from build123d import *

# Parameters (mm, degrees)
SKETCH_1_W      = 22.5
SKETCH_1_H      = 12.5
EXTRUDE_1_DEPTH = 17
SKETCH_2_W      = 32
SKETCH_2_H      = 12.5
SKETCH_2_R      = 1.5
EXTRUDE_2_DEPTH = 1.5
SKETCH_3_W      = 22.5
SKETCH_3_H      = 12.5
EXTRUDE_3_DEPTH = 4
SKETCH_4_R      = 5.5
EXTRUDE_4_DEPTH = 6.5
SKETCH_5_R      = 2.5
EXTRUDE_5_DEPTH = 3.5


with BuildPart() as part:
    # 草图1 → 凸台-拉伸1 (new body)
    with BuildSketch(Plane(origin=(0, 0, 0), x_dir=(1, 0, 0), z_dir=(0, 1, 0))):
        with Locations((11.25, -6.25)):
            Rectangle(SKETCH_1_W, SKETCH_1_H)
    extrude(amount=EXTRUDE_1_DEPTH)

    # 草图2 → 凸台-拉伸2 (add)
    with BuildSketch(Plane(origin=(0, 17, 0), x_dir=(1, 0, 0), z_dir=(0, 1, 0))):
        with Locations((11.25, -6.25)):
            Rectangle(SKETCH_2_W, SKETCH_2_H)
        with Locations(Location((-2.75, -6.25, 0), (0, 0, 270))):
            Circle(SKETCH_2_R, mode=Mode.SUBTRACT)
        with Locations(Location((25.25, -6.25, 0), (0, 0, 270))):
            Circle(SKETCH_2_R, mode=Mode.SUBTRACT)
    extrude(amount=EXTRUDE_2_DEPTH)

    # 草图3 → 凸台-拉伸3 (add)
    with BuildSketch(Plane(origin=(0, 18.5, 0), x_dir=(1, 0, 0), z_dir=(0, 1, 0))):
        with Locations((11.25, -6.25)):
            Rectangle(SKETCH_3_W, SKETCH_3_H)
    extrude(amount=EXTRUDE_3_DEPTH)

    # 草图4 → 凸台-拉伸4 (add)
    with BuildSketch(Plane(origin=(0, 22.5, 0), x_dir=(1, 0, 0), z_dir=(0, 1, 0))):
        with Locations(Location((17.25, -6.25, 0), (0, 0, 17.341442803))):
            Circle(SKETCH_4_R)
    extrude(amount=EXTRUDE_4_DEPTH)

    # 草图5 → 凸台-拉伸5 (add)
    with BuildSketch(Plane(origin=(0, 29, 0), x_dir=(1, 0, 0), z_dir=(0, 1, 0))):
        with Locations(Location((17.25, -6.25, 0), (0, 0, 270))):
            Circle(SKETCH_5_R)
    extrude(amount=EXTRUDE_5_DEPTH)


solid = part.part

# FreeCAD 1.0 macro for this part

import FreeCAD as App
import Part
import Sketcher
from FreeCAD import Vector
Q = App.Units.Quantity


def add_polygon(sketch, points):
    """Adds a closed chain of lines whose ends are joined by coincident constraints."""
    first, n = sketch.GeometryCount, len(points)
    for a, b in zip(points, points[1:] + points[:1]):
        sketch.addGeometry(Part.LineSegment(App.Vector(*a, 0), App.Vector(*b, 0)), False)
    for i in range(n):
        sketch.addConstraint(Sketcher.Constraint("Coincident", first + i, 2, first + (i + 1) % n, 1))

doc = App.newDocument("Part")
body = doc.addObject("PartDesign::Body", "Body")

# Sketch on XZ plane
sketch1 = body.newObject("Sketcher::SketchObject", "Sketch")
sketch1.AttachmentSupport = (doc.getObject("XZ_Plane"), [""])
sketch1.MapMode = "FlatFace"
add_polygon(sketch1, [(0, 0), (0, 12), (22, 12), (22, 0)])  # lines 0-3
sketch1.addConstraint([
    Sketcher.Constraint("Vertical", 0),
    Sketcher.Constraint("Horizontal", 1),
    Sketcher.Constraint("Vertical", 2),
    Sketcher.Constraint("Horizontal", 3),
    Sketcher.Constraint("Coincident", 3, 2, -1, 1),
    Sketcher.Constraint("DistanceX", 1, 1, 1, 2, Q("22.5 mm")),
    Sketcher.Constraint("DistanceY", 0, 1, 0, 2, Q("12.5 mm")),
])
pad1 = body.newObject("PartDesign::Pad", "Pad")
pad1.Profile = sketch1
pad1.Length = 17
pad1.Reversed = True

# Sketch on XZ plane
sketch2 = body.newObject("Sketcher::SketchObject", "Sketch001")
sketch2.AttachmentSupport = (doc.getObject("XZ_Plane"), [""])
sketch2.MapMode = "FlatFace"
sketch2.AttachmentOffset = App.Placement(Vector(0, 0, -17), App.Rotation())
add_polygon(sketch2, [(-4.8, 0), (-4.8, 12.5), (27.2, 12.5), (27.2, 0)])  # lines 0-3
sketch2.addGeometry(Part.Circle(Vector(-2.8, 6.2, 0), Vector(0, 0, 1), 1.5), False)  # 4
sketch2.addGeometry(Part.Circle(Vector(25.2, 6.2, 0), Vector(0, 0, 1), 1.5), False)  # 5
sketch2.addConstraint([
    Sketcher.Constraint("Vertical", 0),
    Sketcher.Constraint("Horizontal", 1),
    Sketcher.Constraint("Vertical", 2),
    Sketcher.Constraint("Horizontal", 3),
    Sketcher.Constraint("Equal", 4, 5),
    Sketcher.Constraint("PointOnObject", 2, 2, -1),
    Sketcher.Constraint("Horizontal", 4, 3, 5, 3),
    Sketcher.Constraint("Diameter", 4, Q("3 mm")),
    Sketcher.Constraint("DistanceX", 1, 1, 1, 2, Q("32 mm")),
    Sketcher.Constraint("DistanceY", 0, 1, 0, 2, Q("12.5 mm")),
    Sketcher.Constraint("DistanceX", 4, 3, 5, 3, Q("28 mm")),
    Sketcher.Constraint("DistanceX", 0, 2, 4, 3, Q("2 mm")),
    Sketcher.Constraint("DistanceX", 4, 3, -1, 1, Q("2.75 mm")),
    Sketcher.Constraint("DistanceY", -1, 1, 4, 3, Q("6.25 mm")),
])
pad2 = body.newObject("PartDesign::Pad", "Pad001")
pad2.Profile = sketch2
pad2.Length = 1.5
pad2.Reversed = True

# Sketch on XZ plane
sketch3 = body.newObject("Sketcher::SketchObject", "Sketch002")
sketch3.AttachmentSupport = (doc.getObject("XZ_Plane"), [""])
sketch3.MapMode = "FlatFace"
sketch3.AttachmentOffset = App.Placement(Vector(0, 0, -18.5), App.Rotation())
add_polygon(sketch3, [(0, 0), (0, 12), (22, 12), (22, 0)])  # lines 0-3
sketch3.addConstraint([
    Sketcher.Constraint("Vertical", 0),
    Sketcher.Constraint("Horizontal", 1),
    Sketcher.Constraint("Vertical", 2),
    Sketcher.Constraint("Horizontal", 3),
    Sketcher.Constraint("Coincident", 3, 2, -1, 1),
    Sketcher.Constraint("DistanceX", 1, 1, 1, 2, Q("22.5 mm")),
    Sketcher.Constraint("DistanceY", 0, 1, 0, 2, Q("12.5 mm")),
])
pad3 = body.newObject("PartDesign::Pad", "Pad002")
pad3.Profile = sketch3
pad3.Length = 4
pad3.Reversed = True

# Sketch on XZ plane
sketch4 = body.newObject("Sketcher::SketchObject", "Sketch003")
sketch4.AttachmentSupport = (doc.getObject("XZ_Plane"), [""])
sketch4.MapMode = "FlatFace"
sketch4.AttachmentOffset = App.Placement(Vector(0, 0, -22.5), App.Rotation())
sketch4.addGeometry(Part.Circle(Vector(17, 6, 0), Vector(0, 0, 1), 6), False)
sketch4.addConstraint([
    Sketcher.Constraint("Diameter", 0, Q("11 mm")),
    Sketcher.Constraint("DistanceX", -1, 1, 0, 3, Q("17.25 mm")),
    Sketcher.Constraint("DistanceY", -1, 1, 0, 3, Q("6.25 mm")),
])
pad4 = body.newObject("PartDesign::Pad", "Pad003")
pad4.Profile = sketch4
pad4.Length = 6.5
pad4.Reversed = True

# Sketch on XZ plane
sketch5 = body.newObject("Sketcher::SketchObject", "Sketch004")
sketch5.AttachmentSupport = (doc.getObject("XZ_Plane"), [""])
sketch5.MapMode = "FlatFace"
sketch5.AttachmentOffset = App.Placement(Vector(0, 0, -29), App.Rotation())
sketch5.addGeometry(Part.Circle(Vector(17.2, 6.2, 0), Vector(0, 0, 1), 2.5), False)
sketch5.addConstraint([
    Sketcher.Constraint("Diameter", 0, Q("5 mm")),
    Sketcher.Constraint("DistanceX", -1, 1, 0, 3, Q("17.25 mm")),
    Sketcher.Constraint("DistanceY", -1, 1, 0, 3, Q("6.25 mm")),
])
pad5 = body.newObject("PartDesign::Pad", "Pad004")
pad5.Profile = sketch5
pad5.Length = 3.5
pad5.Reversed = True

doc.recompute()
